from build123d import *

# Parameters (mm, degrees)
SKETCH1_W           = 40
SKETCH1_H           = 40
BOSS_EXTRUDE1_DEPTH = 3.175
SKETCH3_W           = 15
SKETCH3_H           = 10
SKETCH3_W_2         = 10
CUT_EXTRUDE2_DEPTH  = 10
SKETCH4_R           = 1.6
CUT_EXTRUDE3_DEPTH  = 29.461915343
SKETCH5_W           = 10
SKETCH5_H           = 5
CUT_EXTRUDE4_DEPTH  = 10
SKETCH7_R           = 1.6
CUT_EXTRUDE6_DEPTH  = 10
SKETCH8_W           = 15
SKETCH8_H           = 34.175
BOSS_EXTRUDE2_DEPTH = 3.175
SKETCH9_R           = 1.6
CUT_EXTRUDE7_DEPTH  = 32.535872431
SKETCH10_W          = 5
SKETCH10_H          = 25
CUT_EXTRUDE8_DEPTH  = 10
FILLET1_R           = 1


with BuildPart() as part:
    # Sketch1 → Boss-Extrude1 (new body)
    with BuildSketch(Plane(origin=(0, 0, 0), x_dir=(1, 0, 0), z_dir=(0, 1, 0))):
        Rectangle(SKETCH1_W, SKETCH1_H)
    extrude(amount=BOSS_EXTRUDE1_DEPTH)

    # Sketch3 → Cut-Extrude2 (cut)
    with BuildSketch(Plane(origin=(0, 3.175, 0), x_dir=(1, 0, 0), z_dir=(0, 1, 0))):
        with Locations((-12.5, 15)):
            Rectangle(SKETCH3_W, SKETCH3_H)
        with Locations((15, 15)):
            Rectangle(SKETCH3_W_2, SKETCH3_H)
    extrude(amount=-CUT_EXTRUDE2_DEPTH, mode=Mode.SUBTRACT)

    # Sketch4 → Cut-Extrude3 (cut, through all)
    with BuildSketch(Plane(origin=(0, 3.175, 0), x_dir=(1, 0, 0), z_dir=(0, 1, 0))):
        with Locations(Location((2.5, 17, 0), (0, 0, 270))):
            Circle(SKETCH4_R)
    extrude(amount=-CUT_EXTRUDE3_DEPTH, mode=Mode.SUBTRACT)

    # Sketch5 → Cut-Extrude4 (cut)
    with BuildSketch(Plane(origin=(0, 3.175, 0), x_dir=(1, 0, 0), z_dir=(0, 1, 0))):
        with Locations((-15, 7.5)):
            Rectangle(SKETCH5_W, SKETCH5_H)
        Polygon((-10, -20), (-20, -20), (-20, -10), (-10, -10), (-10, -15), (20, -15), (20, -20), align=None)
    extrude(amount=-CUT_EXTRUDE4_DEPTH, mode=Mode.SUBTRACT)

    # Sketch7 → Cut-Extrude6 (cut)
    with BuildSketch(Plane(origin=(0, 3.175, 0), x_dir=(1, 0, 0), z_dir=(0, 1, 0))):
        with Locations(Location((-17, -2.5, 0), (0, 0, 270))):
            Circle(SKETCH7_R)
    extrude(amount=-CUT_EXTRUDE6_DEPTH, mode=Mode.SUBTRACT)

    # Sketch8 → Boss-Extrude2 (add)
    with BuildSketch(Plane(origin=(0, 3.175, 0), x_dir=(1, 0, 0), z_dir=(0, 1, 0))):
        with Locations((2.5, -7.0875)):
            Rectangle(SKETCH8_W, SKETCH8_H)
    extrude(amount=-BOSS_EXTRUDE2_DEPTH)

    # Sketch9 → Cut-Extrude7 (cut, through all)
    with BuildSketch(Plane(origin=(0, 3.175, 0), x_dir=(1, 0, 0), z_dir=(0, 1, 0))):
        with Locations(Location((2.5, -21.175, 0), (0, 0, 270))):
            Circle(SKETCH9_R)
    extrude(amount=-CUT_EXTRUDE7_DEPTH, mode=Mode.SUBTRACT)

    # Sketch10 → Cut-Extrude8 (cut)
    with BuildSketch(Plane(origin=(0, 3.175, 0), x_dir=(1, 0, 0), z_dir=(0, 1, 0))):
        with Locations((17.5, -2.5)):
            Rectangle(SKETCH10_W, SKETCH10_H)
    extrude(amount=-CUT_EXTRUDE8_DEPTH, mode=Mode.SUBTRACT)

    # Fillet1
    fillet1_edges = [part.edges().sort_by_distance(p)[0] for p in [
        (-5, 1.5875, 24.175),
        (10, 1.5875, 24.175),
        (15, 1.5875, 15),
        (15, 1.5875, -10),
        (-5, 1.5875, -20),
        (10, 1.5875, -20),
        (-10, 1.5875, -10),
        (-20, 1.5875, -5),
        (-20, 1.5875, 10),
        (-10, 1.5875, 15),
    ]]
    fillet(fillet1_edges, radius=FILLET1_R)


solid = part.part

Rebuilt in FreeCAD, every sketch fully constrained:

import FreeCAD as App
import Part
import Sketcher

V = App.Vector
Q = App.Units.Quantity


def edges_at(feature, points):
    """Names of the edges that pass closest to the given points."""
    edges = feature.Shape.Edges
    near = lambda p: min(range(len(edges)), key=lambda i: edges[i].distToShape(Part.Vertex(*p))[0])
    return sorted({f"Edge{near(p) + 1}" for p in points})

doc = App.newDocument("Part")
params = doc.addObject("Spreadsheet::Sheet", "Params")
for row, (alias, value) in enumerate([
    ("sketch1_width", "40 mm"),
    ("pad1_length", "3.175 mm"),
    ("sketch2_width", "15 mm"),
    ("sketch2_width2", "10 mm"),
    ("pocket1_length", "10 mm"),
    ("sketch3_diameter", "3.2 mm"),
    ("sketch4_width", "10 mm"),
    ("sketch4_width2", "40 mm"),
    ("pocket3_length", "10 mm"),
    ("sketch5_diameter", "3.2 mm"),
    ("pocket4_length", "10 mm"),
    ("sketch6_width", "15 mm"),
    ("pad2_length", "3.175 mm"),
    ("sketch7_diameter", "3.2 mm"),
    ("sketch8_width", "5 mm"),
    ("sketch8_height", "25 mm"),
    ("pocket6_length", "10 mm"),
    ("fillet_radius", "1 mm"),
], start=1):
    params.set(f"A{row}", alias)
    params.set(f"B{row}", "=" + value)
    params.setAlias(f"B{row}", alias)

body = doc.addObject("PartDesign::Body", "Body")

# Sketch on XZ plane
sketch1 = body.newObject("Sketcher::SketchObject", "Sketch")
sketch1.AttachmentSupport = (doc.getObject("XZ_Plane"), [""])
sketch1.MapMode = "FlatFace"
sketch1.addGeometry([
    Part.LineSegment(V(-20, -20, 0), V(-20, 20, 0)),
    Part.LineSegment(V(-20, 20, 0), V(20, 20, 0)),
    Part.LineSegment(V(20, 20, 0), V(20, -20, 0)),
    Part.LineSegment(V(20, -20, 0), V(-20, -20, 0)),
], False)
sketch1.addConstraint([
    Sketcher.Constraint("Coincident", 0, 2, 1, 1),
    Sketcher.Constraint("Coincident", 1, 2, 2, 1),
    Sketcher.Constraint("Coincident", 2, 2, 3, 1),
    Sketcher.Constraint("Coincident", 3, 2, 0, 1),
    Sketcher.Constraint("Vertical", 0),
    Sketcher.Constraint("Horizontal", 1),
    Sketcher.Constraint("Vertical", 2),
    Sketcher.Constraint("Horizontal", 3),
    Sketcher.Constraint("Symmetric", 0, 2, 2, 2, -1, 1),
    Sketcher.Constraint("Equal", 3, 0),
    Sketcher.Constraint("DistanceX", 1, 1, 1, 2, Q("40 mm")),
])
sketch1.setExpression("Constraints[10]", "Params.sketch1_width")
pad1 = body.newObject("PartDesign::Pad", "Pad")
pad1.Profile = sketch1
pad1.setExpression("Length", "Params.pad1_length")
pad1.Reversed = True

# Sketch on XZ plane
sketch2 = body.newObject("Sketcher::SketchObject", "Sketch001")
sketch2.AttachmentSupport = (doc.getObject("XZ_Plane"), [""])
sketch2.MapMode = "FlatFace"
sketch2.AttachmentOffset = App.Placement(V(0, 0, -3.175), App.Rotation())
sketch2.addGeometry([
    Part.LineSegment(V(-20, -20, 0), V(-20, -10, 0)),  # 0
    Part.LineSegment(V(-20, -10, 0), V(-5, -10, 0)),  # 1
    Part.LineSegment(V(-5, -10, 0), V(-5, -20, 0)),  # 2
    Part.LineSegment(V(-5, -20, 0), V(-20, -20, 0)),  # 3
    Part.LineSegment(V(10, -20, 0), V(10, -10, 0)),  # 4
    Part.LineSegment(V(10, -10, 0), V(20, -10, 0)),  # 5
    Part.LineSegment(V(20, -10, 0), V(20, -20, 0)),  # 6
    Part.LineSegment(V(20, -20, 0), V(10, -20, 0)),  # 7
], False)
sketch2.addConstraint([
    Sketcher.Constraint("Coincident", 0, 2, 1, 1),
    Sketcher.Constraint("Coincident", 1, 2, 2, 1),
    Sketcher.Constraint("Coincident", 2, 2, 3, 1),
    Sketcher.Constraint("Coincident", 3, 2, 0, 1),
    Sketcher.Constraint("Coincident", 4, 2, 5, 1),
    Sketcher.Constraint("Coincident", 5, 2, 6, 1),
    Sketcher.Constraint("Coincident", 6, 2, 7, 1),
    Sketcher.Constraint("Coincident", 7, 2, 4, 1),
    Sketcher.Constraint("Vertical", 0),
    Sketcher.Constraint("Horizontal", 1),
    Sketcher.Constraint("Vertical", 2),
    Sketcher.Constraint("Horizontal", 3),
    Sketcher.Constraint("Vertical", 4),
    Sketcher.Constraint("Horizontal", 5),
    Sketcher.Constraint("Vertical", 6),
    Sketcher.Constraint("Horizontal", 7),
    Sketcher.Constraint("Symmetric", 0, 2, 5, 2, -2),
    Sketcher.Constraint("Horizontal", 3, 2, 6, 2),
    Sketcher.Constraint("Equal", 7, 0),
    Sketcher.Constraint("DistanceX", 1, 1, 1, 2, Q("15 mm")),
    Sketcher.Constraint("DistanceX", 5, 1, 5, 2, Q("10 mm")),
    Sketcher.Constraint("DistanceX", 0, 2, -1, 1, Q("20 mm")),
    Sketcher.Constraint("DistanceY", 0, 2, -1, 1, Q("10 mm")),
])
sketch2.setExpression("Constraints[19]", "Params.sketch2_width")
sketch2.setExpression("Constraints[20]", "Params.sketch2_width2")
pocket1 = body.newObject("PartDesign::Pocket", "Pocket")
pocket1.Profile = sketch2
pocket1.setExpression("Length", "Params.pocket1_length")
pocket1.Reversed = True

# Sketch on XZ plane
sketch3 = body.newObject("Sketcher::SketchObject", "Sketch002")
sketch3.AttachmentSupport = (doc.getObject("XZ_Plane"), [""])
sketch3.MapMode = "FlatFace"
sketch3.AttachmentOffset = App.Placement(V(0, 0, -3.175), App.Rotation())
sketch3.addGeometry(Part.Circle(V(2.5, -17, 0), V(0, 0, 1), 1.6), False)
sketch3.addConstraint([
    Sketcher.Constraint("Diameter", 0, Q("3.2 mm")),
    Sketcher.Constraint("DistanceY", 0, 3, -1, 1, Q("17 mm")),
    Sketcher.Constraint("DistanceX", -1, 1, 0, 3, Q("2.5 mm")),
])
sketch3.setExpression("Constraints[0]", "Params.sketch3_diameter")
pocket2 = body.newObject("PartDesign::Pocket", "Pocket001")
pocket2.Profile = sketch3
pocket2.Type = "ThroughAll"
pocket2.Reversed = True

# Sketch on XZ plane
sketch4 = body.newObject("Sketcher::SketchObject", "Sketch003")
sketch4.AttachmentSupport = (doc.getObject("XZ_Plane"), [""])
sketch4.MapMode = "FlatFace"
sketch4.AttachmentOffset = App.Placement(V(0, 0, -3.175), App.Rotation())
sketch4.addGeometry([
    Part.LineSegment(V(-20, -10, 0), V(-20, -5, 0)),  # 0
    Part.LineSegment(V(-20, -5, 0), V(-10, -5, 0)),  # 1
    Part.LineSegment(V(-10, -5, 0), V(-10, -10, 0)),  # 2
    Part.LineSegment(V(-10, -10, 0), V(-20, -10, 0)),  # 3
    Part.LineSegment(V(-20, 20, 0), V(20, 20, 0)),  # 4
    Part.LineSegment(V(20, 20, 0), V(20, 15, 0)),  # 5
    Part.LineSegment(V(20, 15, 0), V(-10, 15, 0)),  # 6
    Part.LineSegment(V(-10, 15, 0), V(-10, 10, 0)),  # 7
    Part.LineSegment(V(-10, 10, 0), V(-20, 10, 0)),  # 8
    Part.LineSegment(V(-20, 10, 0), V(-20, 20, 0)),  # 9
], False)
sketch4.addConstraint([
    Sketcher.Constraint("Coincident", 0, 2, 1, 1),
    Sketcher.Constraint("Coincident", 1, 2, 2, 1),
    Sketcher.Constraint("Coincident", 2, 2, 3, 1),
    Sketcher.Constraint("Coincident", 3, 2, 0, 1),
    Sketcher.Constraint("Coincident", 4, 2, 5, 1),
    Sketcher.Constraint("Coincident", 5, 2, 6, 1),
    Sketcher.Constraint("Coincident", 6, 2, 7, 1),
    Sketcher.Constraint("Coincident", 7, 2, 8, 1),
    Sketcher.Constraint("Coincident", 8, 2, 9, 1),
    Sketcher.Constraint("Coincident", 9, 2, 4, 1),
    Sketcher.Constraint("Vertical", 0),
    Sketcher.Constraint("Horizontal", 1),
    Sketcher.Constraint("Vertical", 2),
    Sketcher.Constraint("Horizontal", 3),
    Sketcher.Constraint("Horizontal", 4),
    Sketcher.Constraint("Vertical", 5),
    Sketcher.Constraint("Horizontal", 6),
    Sketcher.Constraint("Vertical", 7),
    Sketcher.Constraint("Horizontal", 8),
    Sketcher.Constraint("Vertical", 9),
    Sketcher.Constraint("Symmetric", 2, 2, 7, 2, -1),
    Sketcher.Constraint("Vertical", 3, 2, 8, 2),
    Sketcher.Constraint("Equal", 2, 5),
    Sketcher.Constraint("Equal", 5, 7),
    Sketcher.Constraint("Equal", 8, 9),
    Sketcher.Constraint("DistanceX", 1, 1, 1, 2, Q("10 mm")),
    Sketcher.Constraint("DistanceX", 4, 1, 4, 2, Q("40 mm")),
    Sketcher.Constraint("DistanceX", 0, 2, -1, 1, Q("20 mm")),
    Sketcher.Constraint("DistanceY", 0, 2, -1, 1, Q("5 mm")),
])
sketch4.setExpression("Constraints[25]", "Params.sketch4_width")
sketch4.setExpression("Constraints[26]", "Params.sketch4_width2")
pocket3 = body.newObject("PartDesign::Pocket", "Pocket002")
pocket3.Profile = sketch4
pocket3.setExpression("Length", "Params.pocket3_length")
pocket3.Reversed = True

# Sketch on XZ plane
sketch5 = body.newObject("Sketcher::SketchObject", "Sketch004")
sketch5.AttachmentSupport = (doc.getObject("XZ_Plane"), [""])
sketch5.MapMode = "FlatFace"
sketch5.AttachmentOffset = App.Placement(V(0, 0, -3.175), App.Rotation())
sketch5.addGeometry(Part.Circle(V(-17, 2.5, 0), V(0, 0, 1), 1.6), False)
sketch5.addConstraint([
    Sketcher.Constraint("Diameter", 0, Q("3.2 mm")),
    Sketcher.Constraint("DistanceX", 0, 3, -1, 1, Q("17 mm")),
    Sketcher.Constraint("DistanceY", -1, 1, 0, 3, Q("2.5 mm")),
])
sketch5.setExpression("Constraints[0]", "Params.sketch5_diameter")
pocket4 = body.newObject("PartDesign::Pocket", "Pocket003")
pocket4.Profile = sketch5
pocket4.setExpression("Length", "Params.pocket4_length")
pocket4.Reversed = True

# Sketch on XZ plane
sketch6 = body.newObject("Sketcher::SketchObject", "Sketch005")
sketch6.AttachmentSupport = (doc.getObject("XZ_Plane"), [""])
sketch6.MapMode = "FlatFace"
sketch6.AttachmentOffset = App.Placement(V(0, 0, -3.175), App.Rotation())
sketch6.addGeometry([
    Part.LineSegment(V(-5, -10, 0), V(-5, 24.175, 0)),
    Part.LineSegment(V(-5, 24.175, 0), V(10, 24.175, 0)),
    Part.LineSegment(V(10, 24.175, 0), V(10, -10, 0)),
    Part.LineSegment(V(10, -10, 0), V(-5, -10, 0)),
], False)
sketch6.addConstraint([
    Sketcher.Constraint("Coincident", 0, 2, 1, 1),
    Sketcher.Constraint("Coincident", 1, 2, 2, 1),
    Sketcher.Constraint("Coincident", 2, 2, 3, 1),
    Sketcher.Constraint("Coincident", 3, 2, 0, 1),
    Sketcher.Constraint("Vertical", 0),
    Sketcher.Constraint("Horizontal", 1),
    Sketcher.Constraint("Vertical", 2),
    Sketcher.Constraint("Horizontal", 3),
    Sketcher.Constraint("DistanceX", 1, 1, 1, 2, Q("15 mm")),
    Sketcher.Constraint("DistanceX", 0, 2, -1, 1, Q("5 mm")),
    Sketcher.Constraint("DistanceY", 2, 2, -1, 1, Q("10 mm")),
    Sketcher.Constraint("DistanceY", 0, 1, 0, 2, Q("34.175 mm")),
])
sketch6.setExpression("Constraints[8]", "Params.sketch6_width")
pad2 = body.newObject("PartDesign::Pad", "Pad001")
pad2.Profile = sketch6
pad2.setExpression("Length", "Params.pad2_length")

# Sketch on XZ plane
sketch7 = body.newObject("Sketcher::SketchObject", "Sketch006")
sketch7.AttachmentSupport = (doc.getObject("XZ_Plane"), [""])
sketch7.MapMode = "FlatFace"
sketch7.AttachmentOffset = App.Placement(V(0, 0, -3.175), App.Rotation())
sketch7.addGeometry(Part.Circle(V(2.5, 21.175, 0), V(0, 0, 1), 1.6), False)
sketch7.addConstraint([
    Sketcher.Constraint("Diameter", 0, Q("3.2 mm")),
    Sketcher.Constraint("DistanceX", -1, 1, 0, 3, Q("2.5 mm")),
    Sketcher.Constraint("DistanceY", -1, 1, 0, 3, Q("21.175 mm")),
])
sketch7.setExpression("Constraints[0]", "Params.sketch7_diameter")
pocket5 = body.newObject("PartDesign::Pocket", "Pocket004")
pocket5.Profile = sketch7
pocket5.Type = "ThroughAll"
pocket5.Reversed = True

# Sketch on XZ plane
sketch8 = body.newObject("Sketcher::SketchObject", "Sketch007")
sketch8.AttachmentSupport = (doc.getObject("XZ_Plane"), [""])
sketch8.MapMode = "FlatFace"
sketch8.AttachmentOffset = App.Placement(V(0, 0, -3.175), App.Rotation())
sketch8.addGeometry([
    Part.LineSegment(V(15, -10, 0), V(15, 15, 0)),
    Part.LineSegment(V(15, 15, 0), V(20, 15, 0)),
    Part.LineSegment(V(20, 15, 0), V(20, -10, 0)),
    Part.LineSegment(V(20, -10, 0), V(15, -10, 0)),
], False)
sketch8.addConstraint([
    Sketcher.Constraint("Coincident", 0, 2, 1, 1),
    Sketcher.Constraint("Coincident", 1, 2, 2, 1),
    Sketcher.Constraint("Coincident", 2, 2, 3, 1),
    Sketcher.Constraint("Coincident", 3, 2, 0, 1),
    Sketcher.Constraint("Vertical", 0),
    Sketcher.Constraint("Horizontal", 1),
    Sketcher.Constraint("Vertical", 2),
    Sketcher.Constraint("Horizontal", 3),
    Sketcher.Constraint("DistanceX", 1, 1, 1, 2, Q("5 mm")),
    Sketcher.Constraint("DistanceY", 0, 1, 0, 2, Q("25 mm")),
    Sketcher.Constraint("DistanceX", -1, 1, 0, 2, Q("15 mm")),
    Sketcher.Constraint("DistanceY", -1, 1, 0, 2, Q("15 mm")),
])
sketch8.setExpression("Constraints[8]", "Params.sketch8_width")
sketch8.setExpression("Constraints[9]", "Params.sketch8_height")
pocket6 = body.newObject("PartDesign::Pocket", "Pocket005")
pocket6.Profile = sketch8
pocket6.setExpression("Length", "Params.pocket6_length")
pocket6.Reversed = True
doc.recompute()

fillet = body.newObject("PartDesign::Fillet", "Fillet")
fillet.Base = (pocket6, edges_at(pocket6, [
    (-5, 1.587, 24.175),
    (10, 1.587, 24.175),
    (15, 1.587, 15),
    (15, 1.587, -10),
    (-5, 1.587, -20),
    (10, 1.587, -20),
    (-10, 1.587, -10),
    (-20, 1.587, -5),
    (-20, 1.587, 10),
    (-10, 1.587, 15),
]))
fillet.setExpression("Radius", "Params.fillet_radius")

doc.recompute()
